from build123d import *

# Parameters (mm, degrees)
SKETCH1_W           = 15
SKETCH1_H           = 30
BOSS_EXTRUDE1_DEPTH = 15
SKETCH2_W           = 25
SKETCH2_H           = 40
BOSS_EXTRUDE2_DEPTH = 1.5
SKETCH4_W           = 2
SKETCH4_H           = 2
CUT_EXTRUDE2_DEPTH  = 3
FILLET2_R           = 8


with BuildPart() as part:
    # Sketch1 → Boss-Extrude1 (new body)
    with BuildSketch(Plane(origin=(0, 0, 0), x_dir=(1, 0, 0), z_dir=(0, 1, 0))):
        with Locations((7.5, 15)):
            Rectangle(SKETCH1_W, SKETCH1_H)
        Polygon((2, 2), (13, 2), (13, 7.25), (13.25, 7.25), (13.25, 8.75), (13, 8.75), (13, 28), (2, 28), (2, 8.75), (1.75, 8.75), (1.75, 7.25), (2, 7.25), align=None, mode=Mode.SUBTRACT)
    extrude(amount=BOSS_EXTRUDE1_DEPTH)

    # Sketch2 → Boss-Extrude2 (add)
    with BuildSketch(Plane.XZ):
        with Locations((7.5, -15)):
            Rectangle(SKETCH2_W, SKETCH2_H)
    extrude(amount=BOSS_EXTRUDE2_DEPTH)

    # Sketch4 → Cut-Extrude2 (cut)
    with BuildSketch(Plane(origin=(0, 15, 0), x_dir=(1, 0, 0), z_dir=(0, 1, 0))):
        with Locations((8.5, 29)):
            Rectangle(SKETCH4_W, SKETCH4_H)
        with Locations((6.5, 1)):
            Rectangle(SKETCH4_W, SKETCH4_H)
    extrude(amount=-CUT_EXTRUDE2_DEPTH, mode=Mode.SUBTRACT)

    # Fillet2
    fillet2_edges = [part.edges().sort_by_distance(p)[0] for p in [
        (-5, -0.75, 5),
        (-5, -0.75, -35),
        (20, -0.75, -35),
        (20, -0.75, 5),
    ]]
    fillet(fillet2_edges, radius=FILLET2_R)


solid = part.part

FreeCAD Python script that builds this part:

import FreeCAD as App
import Part
import Sketcher

V = App.Vector
Q = App.Units.Quantity


def edges_at(feature, points):
    """Names of the edges that pass closest to the given points."""
    edges = feature.Shape.Edges
    near = lambda p: min(range(len(edges)), key=lambda i: edges[i].distToShape(Part.Vertex(*p))[0])
    return sorted({f"Edge{near(p) + 1}" for p in points})


def add_polygon(sketch, points):
    """Adds a closed chain of lines whose ends are joined by coincident constraints."""
    first, n = sketch.GeometryCount, len(points)
    for a, b in zip(points, points[1:] + points[:1]):
        sketch.addGeometry(Part.LineSegment(App.Vector(*a, 0), App.Vector(*b, 0)), False)
    for i in range(n):
        sketch.addConstraint(Sketcher.Constraint("Coincident", first + i, 2, first + (i + 1) % n, 1))

doc = App.newDocument("Part")
body = doc.addObject("PartDesign::Body", "Body")

# Sketch on XZ plane
sketch1 = doc.addObject("Sketcher::SketchObject", "Sketch")
body.addObject(sketch1)
sketch1.AttachmentSupport = (doc.XZ_Plane, [""])
sketch1.MapMode = "FlatFace"
add_polygon(sketch1, [(0, -30), (0, 0), (15, 0), (15, -30)])  # lines 0-3
add_polygon(sketch1, [(13, -2), (2, -2), (2, -7.25), (1.75, -7.25), (1.75, -8.75), (2, -8.75), (2, -28), (13, -28), (13, -8.75), (13.25, -8.75), (13.25, -7.25), (13, -7.25)])  # lines 4-15
sketch1.addConstraint(Sketcher.Constraint("Vertical", 0))
sketch1.addConstraint(Sketcher.Constraint("Horizontal", 1))
sketch1.addConstraint(Sketcher.Constraint("Vertical", 2))
sketch1.addConstraint(Sketcher.Constraint("Horizontal", 3))
sketch1.addConstraint(Sketcher.Constraint("Horizontal", 4))
sketch1.addConstraint(Sketcher.Constraint("Vertical", 5))
sketch1.addConstraint(Sketcher.Constraint("Horizontal", 6))
sketch1.addConstraint(Sketcher.Constraint("Vertical", 7))
sketch1.addConstraint(Sketcher.Constraint("Horizontal", 8))
sketch1.addConstraint(Sketcher.Constraint("Vertical", 9))
sketch1.addConstraint(Sketcher.Constraint("Horizontal", 10))
sketch1.addConstraint(Sketcher.Constraint("Vertical", 11))
sketch1.addConstraint(Sketcher.Constraint("Horizontal", 12))
sketch1.addConstraint(Sketcher.Constraint("Vertical", 13))
sketch1.addConstraint(Sketcher.Constraint("Horizontal", 14))
sketch1.addConstraint(Sketcher.Constraint("Vertical", 15))
sketch1.addConstraint(Sketcher.Constraint("Coincident", 0, 2, -1, 1))
sketch1.addConstraint(Sketcher.Constraint("Horizontal", 8, 2, 11, 2))
sketch1.addConstraint(Sketcher.Constraint("Horizontal", 6, 2, 13, 2))
sketch1.addConstraint(Sketcher.Constraint("Vertical", 5, 2, 8, 2))
sketch1.addConstraint(Sketcher.Constraint("Vertical", 11, 2, 14, 2))
sketch1.addConstraint(Sketcher.Constraint("Equal", 8, 12))
sketch1.addConstraint(Sketcher.Constraint("DistanceX", 1, 1, 1, 2, Q("15 mm")))
sketch1.addConstraint(Sketcher.Constraint("DistanceX", 4, 2, 4, 1, Q("11 mm")))
sketch1.addConstraint(Sketcher.Constraint("DistanceY", 0, 1, 0, 2, Q("30 mm")))
sketch1.addConstraint(Sketcher.Constraint("DistanceY", 7, 2, 7, 1, Q("1.5 mm")))
sketch1.addConstraint(Sketcher.Constraint("DistanceX", -1, 1, 4, 2, Q("2 mm")))
sketch1.addConstraint(Sketcher.Constraint("DistanceY", 4, 2, -1, 1, Q("2 mm")))
sketch1.addConstraint(Sketcher.Constraint("DistanceY", 9, 2, -1, 1, Q("28 mm")))
sketch1.addConstraint(Sketcher.Constraint("DistanceX", 6, 2, 6, 1, Q("0.25 mm")))
sketch1.addConstraint(Sketcher.Constraint("DistanceY", 5, 2, 5, 1, Q("5.25 mm")))
pad1 = doc.addObject("PartDesign::Pad", "Pad")
body.addObject(pad1)
pad1.Profile = sketch1
pad1.Length = 15
pad1.Reversed = True

# Sketch on XZ plane
sketch2 = doc.addObject("Sketcher::SketchObject", "Sketch001")
body.addObject(sketch2)
sketch2.AttachmentSupport = (doc.XZ_Plane, [""])
sketch2.MapMode = "FlatFace"
add_polygon(sketch2, [(-5, 5), (-5, -35), (20, -35), (20, 5)])  # lines 0-3
sketch2.addConstraint(Sketcher.Constraint("Vertical", 0))
sketch2.addConstraint(Sketcher.Constraint("Horizontal", 1))
sketch2.addConstraint(Sketcher.Constraint("Vertical", 2))
sketch2.addConstraint(Sketcher.Constraint("Horizontal", 3))
sketch2.addConstraint(Sketcher.Constraint("DistanceX", 1, 1, 1, 2, Q("25 mm")))
sketch2.addConstraint(Sketcher.Constraint("DistanceY", 0, 2, 0, 1, Q("40 mm")))
sketch2.addConstraint(Sketcher.Constraint("DistanceX", 0, 2, -1, 1, Q("5 mm")))
sketch2.addConstraint(Sketcher.Constraint("DistanceY", 0, 2, -1, 1, Q("35 mm")))
pad2 = doc.addObject("PartDesign::Pad", "Pad001")
body.addObject(pad2)
pad2.Profile = sketch2
pad2.Length = 1.5

# Sketch on XZ plane
sketch3 = doc.addObject("Sketcher::SketchObject", "Sketch002")
body.addObject(sketch3)
sketch3.AttachmentSupport = (doc.XZ_Plane, [""])
sketch3.MapMode = "FlatFace"
sketch3.AttachmentOffset = App.Placement(V(0, 0, -15), App.Rotation())
add_polygon(sketch3, [(7.5, -30), (7.5, -28), (9.5, -28), (9.5, -30)])  # lines 0-3
add_polygon(sketch3, [(5.5, -2), (5.5, 0), (7.5, 0), (7.5, -2)])  # lines 4-7
sketch3.addConstraint(Sketcher.Constraint("Vertical", 0))
sketch3.addConstraint(Sketcher.Constraint("Horizontal", 1))
sketch3.addConstraint(Sketcher.Constraint("Vertical", 2))
sketch3.addConstraint(Sketcher.Constraint("Horizontal", 3))
sketch3.addConstraint(Sketcher.Constraint("Vertical", 4))
sketch3.addConstraint(Sketcher.Constraint("Horizontal", 5))
sketch3.addConstraint(Sketcher.Constraint("Vertical", 6))
sketch3.addConstraint(Sketcher.Constraint("Horizontal", 7))
sketch3.addConstraint(Sketcher.Constraint("PointOnObject", 4, 2, -1))
sketch3.addConstraint(Sketcher.Constraint("Vertical", 3, 2, 5, 2))
sketch3.addConstraint(Sketcher.Constraint("Equal", 3, 5))
sketch3.addConstraint(Sketcher.Constraint("Equal", 7, 0))
sketch3.addConstraint(Sketcher.Constraint("Equal", 2, 4))
sketch3.addConstraint(Sketcher.Constraint("DistanceX", 1, 1, 1, 2, Q("2 mm")))
sketch3.addConstraint(Sketcher.Constraint("DistanceY", 0, 2, -1, 1, Q("28 mm")))
sketch3.addConstraint(Sketcher.Constraint("DistanceX", -1, 1, 0, 2, Q("7.5 mm")))
pocket1 = doc.addObject("PartDesign::Pocket", "Pocket")
body.addObject(pocket1)
pocket1.Profile = sketch3
pocket1.Length = 3
pocket1.Reversed = True
doc.recompute()

fillet = doc.addObject("PartDesign::Fillet", "Fillet")
body.addObject(fillet)
fillet.Base = (pocket1, edges_at(pocket1, [
    (-5, -0.75, 5),
    (-5, -0.75, -35),
    (20, -0.75, -35),
    (20, -0.75, 5),
]))
fillet.Radius = 8

doc.recompute()
